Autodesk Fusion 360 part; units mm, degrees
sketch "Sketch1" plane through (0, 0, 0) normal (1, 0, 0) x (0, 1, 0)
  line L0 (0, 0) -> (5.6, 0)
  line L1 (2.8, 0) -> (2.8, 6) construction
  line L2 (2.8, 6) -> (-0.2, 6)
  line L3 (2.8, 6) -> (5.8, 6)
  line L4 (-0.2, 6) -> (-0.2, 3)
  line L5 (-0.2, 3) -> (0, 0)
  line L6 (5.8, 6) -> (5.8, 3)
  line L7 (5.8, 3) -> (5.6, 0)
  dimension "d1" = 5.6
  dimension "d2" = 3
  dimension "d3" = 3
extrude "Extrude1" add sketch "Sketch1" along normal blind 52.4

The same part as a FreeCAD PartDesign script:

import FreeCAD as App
import Part
import Sketcher
from FreeCAD import Vector
Q = App.Units.Quantity


def add_polygon(sketch, points):
    """Adds a closed chain of lines whose ends are joined by coincident constraints."""
    first, n = sketch.GeometryCount, len(points)
    for a, b in zip(points, points[1:] + points[:1]):
        sketch.addGeometry(Part.LineSegment(App.Vector(*a, 0), App.Vector(*b, 0)), False)
    for i in range(n):
        sketch.addConstraint(Sketcher.Constraint("Coincident", first + i, 2, first + (i + 1) % n, 1))

doc = App.newDocument("Part")
body = doc.addObject("PartDesign::Body", "Body")

# Sketch on YZ plane
sketch1 = doc.addObject("Sketcher::SketchObject", "Sketch")
body.addObject(sketch1)
sketch1.AttachmentSupport = (doc.YZ_Plane, [""])
sketch1.MapMode = "FlatFace"
add_polygon(sketch1, [(-0.2, 3), (0, 0), (5.6, 0), (5.8, 3), (5.8, 6), (-0.2, 6)])  # lines 0-5
sketch1.addConstraint([
    Sketcher.Constraint("Horizontal", 1),
    Sketcher.Constraint("Vertical", 3),
    Sketcher.Constraint("Horizontal", 4),
    Sketcher.Constraint("Vertical", 5),
    Sketcher.Constraint("Coincident", 0, 2, -1, 1),
    Sketcher.Constraint("Horizontal", 2, 2, 5, 2),
    Sketcher.Constraint("Equal", 0, 2),
    Sketcher.Constraint("DistanceY", 3, 1, 3, 2, Q("3 mm")),
    Sketcher.Constraint("DistanceX", 1, 1, 1, 2, Q("5.6 mm")),
    Sketcher.Constraint("DistanceY", -1, 1, 2, 2, Q("3 mm")),
    Sketcher.Constraint("DistanceX", 4, 2, 4, 1, Q("6 mm")),
])
pad1 = doc.addObject("PartDesign::Pad", "Pad")
body.addObject(pad1)
pad1.Profile = sketch1
pad1.Length = 52.4

doc.recompute()
